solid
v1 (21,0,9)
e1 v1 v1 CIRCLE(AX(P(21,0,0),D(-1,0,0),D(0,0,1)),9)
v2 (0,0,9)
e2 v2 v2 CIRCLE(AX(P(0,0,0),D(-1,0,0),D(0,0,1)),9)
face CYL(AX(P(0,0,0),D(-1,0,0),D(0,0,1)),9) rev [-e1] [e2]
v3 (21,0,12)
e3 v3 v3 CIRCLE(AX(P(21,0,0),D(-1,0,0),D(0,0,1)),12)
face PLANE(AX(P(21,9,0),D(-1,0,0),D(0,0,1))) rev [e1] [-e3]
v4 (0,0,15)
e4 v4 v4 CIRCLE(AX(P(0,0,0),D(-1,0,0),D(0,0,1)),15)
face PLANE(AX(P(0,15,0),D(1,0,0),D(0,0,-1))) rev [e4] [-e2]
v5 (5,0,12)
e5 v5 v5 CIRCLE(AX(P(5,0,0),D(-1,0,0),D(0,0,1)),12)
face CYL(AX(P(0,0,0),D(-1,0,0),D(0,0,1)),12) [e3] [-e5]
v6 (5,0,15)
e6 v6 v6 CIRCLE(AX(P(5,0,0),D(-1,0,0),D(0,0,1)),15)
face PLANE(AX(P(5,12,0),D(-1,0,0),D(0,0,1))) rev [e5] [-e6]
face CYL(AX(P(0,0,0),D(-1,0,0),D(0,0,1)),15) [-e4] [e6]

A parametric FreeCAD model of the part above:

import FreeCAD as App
import Part
import Sketcher

V = App.Vector
Q = App.Units.Quantity

doc = App.newDocument("Part")
body = doc.addObject("PartDesign::Body", "Body")

sketch1 = body.newObject("Sketcher::SketchObject", "Sketch")
sketch1.AttachmentSupport = (doc.getObject("XY_Plane"), [""])
sketch1.MapMode = "FlatFace"
sketch1.addGeometry([
    Part.LineSegment(V(0, 9, 0), V(21, 9, 0)),
    Part.LineSegment(V(21, 9, 0), V(21, 12, 0)),
    Part.LineSegment(V(21, 12, 0), V(5, 12, 0)),
    Part.LineSegment(V(5, 12, 0), V(5, 15, 0)),
    Part.LineSegment(V(5, 15, 0), V(0, 15, 0)),
    Part.LineSegment(V(0, 15, 0), V(0, 9, 0)),
], False)
sketch1.addConstraint([
    Sketcher.Constraint("Coincident", 0, 2, 1, 1),
    Sketcher.Constraint("Coincident", 1, 2, 2, 1),
    Sketcher.Constraint("Coincident", 2, 2, 3, 1),
    Sketcher.Constraint("Coincident", 3, 2, 4, 1),
    Sketcher.Constraint("Coincident", 4, 2, 5, 1),
    Sketcher.Constraint("Coincident", 5, 2, 0, 1),
    Sketcher.Constraint("Horizontal", 0),
    Sketcher.Constraint("Vertical", 1),
    Sketcher.Constraint("Horizontal", 2),
    Sketcher.Constraint("Vertical", 3),
    Sketcher.Constraint("Horizontal", 4),
    Sketcher.Constraint("Vertical", 5),
    Sketcher.Constraint("PointOnObject", 4, 2, -2),
    Sketcher.Constraint("Equal", 1, 3),
    Sketcher.Constraint("DistanceX", 0, 1, 0, 2, Q("21 mm")),
    Sketcher.Constraint("DistanceX", 2, 2, 2, 1, Q("16 mm")),
    Sketcher.Constraint("DistanceY", 1, 1, 1, 2, Q("3 mm")),
    Sketcher.Constraint("DistanceY", -1, 1, 0, 2, Q("9 mm")),
])
revolution = body.newObject("PartDesign::Revolution", "Revolution")
revolution.Profile = sketch1
revolution.ReferenceAxis = (sketch1, ["H_Axis"])
revolution.Angle = 360

doc.recompute()
